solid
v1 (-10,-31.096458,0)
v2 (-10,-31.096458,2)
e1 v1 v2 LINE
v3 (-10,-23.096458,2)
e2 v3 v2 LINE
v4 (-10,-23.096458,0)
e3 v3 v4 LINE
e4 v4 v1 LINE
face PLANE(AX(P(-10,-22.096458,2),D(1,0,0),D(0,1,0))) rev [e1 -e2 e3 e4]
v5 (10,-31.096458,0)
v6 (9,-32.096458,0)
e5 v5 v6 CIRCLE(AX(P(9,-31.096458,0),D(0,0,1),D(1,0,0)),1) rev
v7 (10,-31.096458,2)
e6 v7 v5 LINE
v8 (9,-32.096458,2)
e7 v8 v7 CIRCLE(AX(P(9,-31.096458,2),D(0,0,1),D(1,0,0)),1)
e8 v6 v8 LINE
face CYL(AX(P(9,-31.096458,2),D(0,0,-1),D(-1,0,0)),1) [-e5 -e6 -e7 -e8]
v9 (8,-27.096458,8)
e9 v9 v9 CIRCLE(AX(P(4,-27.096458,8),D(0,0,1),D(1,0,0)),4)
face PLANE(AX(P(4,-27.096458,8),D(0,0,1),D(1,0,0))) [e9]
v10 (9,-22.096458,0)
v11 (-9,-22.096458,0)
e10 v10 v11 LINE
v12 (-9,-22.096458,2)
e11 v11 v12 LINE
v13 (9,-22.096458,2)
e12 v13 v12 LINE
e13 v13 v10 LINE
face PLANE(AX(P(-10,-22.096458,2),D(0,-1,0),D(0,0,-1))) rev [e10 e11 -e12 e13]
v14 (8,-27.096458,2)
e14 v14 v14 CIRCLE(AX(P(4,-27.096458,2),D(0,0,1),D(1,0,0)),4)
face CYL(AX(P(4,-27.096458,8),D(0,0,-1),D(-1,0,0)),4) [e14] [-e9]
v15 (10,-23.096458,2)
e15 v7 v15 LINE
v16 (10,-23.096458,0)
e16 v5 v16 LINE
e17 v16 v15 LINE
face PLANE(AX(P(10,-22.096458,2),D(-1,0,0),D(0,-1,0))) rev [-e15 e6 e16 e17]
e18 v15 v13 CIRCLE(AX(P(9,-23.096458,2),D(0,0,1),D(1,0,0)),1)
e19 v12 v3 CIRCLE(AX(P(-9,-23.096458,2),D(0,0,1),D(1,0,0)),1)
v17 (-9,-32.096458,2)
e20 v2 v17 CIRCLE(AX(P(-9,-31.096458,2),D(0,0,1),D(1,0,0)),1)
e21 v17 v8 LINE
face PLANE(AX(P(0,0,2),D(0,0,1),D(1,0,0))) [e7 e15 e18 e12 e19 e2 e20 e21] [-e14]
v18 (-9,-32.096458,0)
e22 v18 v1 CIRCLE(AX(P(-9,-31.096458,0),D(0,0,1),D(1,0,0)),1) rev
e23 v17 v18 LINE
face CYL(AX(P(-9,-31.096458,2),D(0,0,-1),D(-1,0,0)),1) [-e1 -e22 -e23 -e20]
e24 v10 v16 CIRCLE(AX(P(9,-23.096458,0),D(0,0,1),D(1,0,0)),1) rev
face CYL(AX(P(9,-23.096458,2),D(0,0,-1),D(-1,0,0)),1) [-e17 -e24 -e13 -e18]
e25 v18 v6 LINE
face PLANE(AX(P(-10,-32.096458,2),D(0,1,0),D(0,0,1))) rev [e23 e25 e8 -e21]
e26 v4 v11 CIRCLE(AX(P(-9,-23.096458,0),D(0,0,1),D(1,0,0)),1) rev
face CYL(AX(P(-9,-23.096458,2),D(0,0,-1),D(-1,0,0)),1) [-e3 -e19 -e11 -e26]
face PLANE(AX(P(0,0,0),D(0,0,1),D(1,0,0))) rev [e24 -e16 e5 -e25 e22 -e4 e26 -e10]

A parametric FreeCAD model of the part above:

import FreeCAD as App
import Part
import Sketcher

V = App.Vector


def edges_at(feature, points):
    """Names of the edges that pass closest to the given points."""
    edges = feature.Shape.Edges
    near = lambda p: min(range(len(edges)), key=lambda i: edges[i].distToShape(Part.Vertex(*p))[0])
    return sorted({f"Edge{near(p) + 1}" for p in points})

doc = App.newDocument("Part")
body = doc.addObject("PartDesign::Body", "Body")

# Sketch on XY plane
sketch1 = body.newObject("Sketcher::SketchObject", "Sketch")
sketch1.AttachmentSupport = (doc.getObject("XY_Plane"), [""])
sketch1.MapMode = "FlatFace"
sketch1.addGeometry([
    Part.LineSegment(V(-10, -22.096458, 0), V(-10, -32.096458, 0)),
    Part.LineSegment(V(-10, -32.096458, 0), V(10, -32.096458, 0)),
    Part.LineSegment(V(10, -32.096458, 0), V(10, -22.096458, 0)),
    Part.LineSegment(V(10, -22.096458, 0), V(-10, -22.096458, 0)),
], False)
sketch1.addConstraint([
    Sketcher.Constraint("Coincident", 0, 2, 1, 1),
    Sketcher.Constraint("Coincident", 1, 2, 2, 1),
    Sketcher.Constraint("Coincident", 2, 2, 3, 1),
    Sketcher.Constraint("Coincident", 3, 2, 0, 1),
    Sketcher.Constraint("Vertical", 0),
    Sketcher.Constraint("Horizontal", 1),
    Sketcher.Constraint("Vertical", 2),
    Sketcher.Constraint("Horizontal", 3),
    Sketcher.Constraint("DistanceX", 1, 1, 1, 2, 20.0),
    Sketcher.Constraint("DistanceY", 0, 2, 0, 1, 10.0),
    Sketcher.Constraint("DistanceX", 0, 2, -1, 1, 10.0),
    Sketcher.Constraint("DistanceY", 0, 2, -1, 1, 32.096458),
])
pad1 = body.newObject("PartDesign::Pad", "Pad")
pad1.Profile = sketch1
pad1.Length = 2

# Sketch on XY plane
sketch2 = body.newObject("Sketcher::SketchObject", "Sketch001")
sketch2.AttachmentSupport = (doc.getObject("XY_Plane"), [""])
sketch2.MapMode = "FlatFace"
sketch2.AttachmentOffset = App.Placement(V(0, 0, 2), App.Rotation())
sketch2.addGeometry(Part.Circle(V(4, -27.096458, 0), V(0, 0, 1), 4), False)
sketch2.addConstraint([
    Sketcher.Constraint("Diameter", 0, 8.0),
    Sketcher.Constraint("DistanceX", -1, 1, 0, 3, 4.0),
    Sketcher.Constraint("DistanceY", 0, 3, -1, 1, 27.096458),
])
pad2 = body.newObject("PartDesign::Pad", "Pad001")
pad2.Profile = sketch2
pad2.Length = 6
doc.recompute()

fillet = body.newObject("PartDesign::Fillet", "Fillet")
fillet.Base = (pad2, edges_at(pad2, [
    (-10, -22.096, 1),
    (10, -22.096, 1),
    (10, -32.096, 1),
    (-10, -32.096, 1),
]))
fillet.Radius = 1

doc.recompute()
